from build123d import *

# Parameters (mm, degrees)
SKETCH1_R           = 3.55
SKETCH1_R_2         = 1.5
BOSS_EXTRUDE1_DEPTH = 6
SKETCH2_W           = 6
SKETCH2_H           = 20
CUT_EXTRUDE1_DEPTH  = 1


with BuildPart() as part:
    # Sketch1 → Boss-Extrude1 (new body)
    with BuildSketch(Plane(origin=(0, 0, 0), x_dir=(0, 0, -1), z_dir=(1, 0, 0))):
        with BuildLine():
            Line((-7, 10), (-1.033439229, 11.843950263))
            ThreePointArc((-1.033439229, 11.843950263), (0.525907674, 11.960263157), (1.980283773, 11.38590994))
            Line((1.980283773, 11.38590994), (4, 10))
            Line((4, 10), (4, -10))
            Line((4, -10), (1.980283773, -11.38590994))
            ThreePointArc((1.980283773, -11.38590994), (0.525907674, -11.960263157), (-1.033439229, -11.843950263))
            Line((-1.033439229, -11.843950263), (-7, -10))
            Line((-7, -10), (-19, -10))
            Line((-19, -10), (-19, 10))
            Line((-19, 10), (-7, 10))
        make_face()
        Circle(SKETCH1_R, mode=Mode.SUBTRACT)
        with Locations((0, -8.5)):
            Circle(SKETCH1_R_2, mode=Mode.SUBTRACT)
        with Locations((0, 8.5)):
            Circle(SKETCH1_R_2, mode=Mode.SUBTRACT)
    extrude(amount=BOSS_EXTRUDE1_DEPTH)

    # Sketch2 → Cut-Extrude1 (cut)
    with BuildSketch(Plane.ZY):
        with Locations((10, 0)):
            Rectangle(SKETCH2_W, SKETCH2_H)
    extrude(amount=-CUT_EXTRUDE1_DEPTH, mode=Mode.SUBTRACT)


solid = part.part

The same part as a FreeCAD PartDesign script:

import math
import FreeCAD as App
import Part
import Sketcher
from FreeCAD import Vector
Q = App.Units.Quantity


def add_polygon(sketch, points):
    """Adds a closed chain of lines whose ends are joined by coincident constraints."""
    first, n = sketch.GeometryCount, len(points)
    for a, b in zip(points, points[1:] + points[:1]):
        sketch.addGeometry(Part.LineSegment(App.Vector(*a, 0), App.Vector(*b, 0)), False)
    for i in range(n):
        sketch.addConstraint(Sketcher.Constraint("Coincident", first + i, 2, first + (i + 1) % n, 1))

doc = App.newDocument("Part")
body = doc.addObject("PartDesign::Body", "Body")

sketch1 = body.newObject("Sketcher::SketchObject", "Sketch")
sketch1.AttachmentSupport = (doc.getObject("YZ_Plane"), [""])
sketch1.MapMode = "FlatFace"
sketch1.addGeometry([
    Part.LineSegment(Vector(11.84395, 1.033439, 0), Vector(10, 7, 0)),
    Part.LineSegment(Vector(10, 7, 0), Vector(10, 19, 0)),
    Part.LineSegment(Vector(10, 19, 0), Vector(-10, 19, 0)),
    Part.LineSegment(Vector(-10, 19, 0), Vector(-10, 7, 0)),
    Part.LineSegment(Vector(-10, 7, 0), Vector(-11.84395, 1.033439, 0)),
    Part.ArcOfCircle(Part.Circle(Vector(-8.5, 0, 0), Vector(0, 0, 1), 3.5), math.radians(162.82637), math.radians(214.457541)),
    Part.LineSegment(Vector(-11.38591, -1.980284, 0), Vector(-10, -4, 0)),
    Part.LineSegment(Vector(-10, -4, 0), Vector(10, -4, 0)),
    Part.LineSegment(Vector(10, -4, 0), Vector(11.38591, -1.980284, 0)),
    Part.ArcOfCircle(Part.Circle(Vector(8.5, 0, 0), Vector(0, 0, 1), 3.5), math.radians(-34.457541), math.radians(17.17363)),
    Part.Circle(Vector(-8.5, 0, 0), Vector(0, 0, 1), 1.5),
    Part.Circle(Vector(8.5, 0, 0), Vector(0, 0, 1), 1.5),
    Part.Circle(Vector(0, 0, 0), Vector(0, 0, 1), 3.55),
], False)
sketch1.addConstraint([
    Sketcher.Constraint("Coincident", 0, 2, 1, 1),
    Sketcher.Constraint("Coincident", 1, 2, 2, 1),
    Sketcher.Constraint("Coincident", 2, 2, 3, 1),
    Sketcher.Constraint("Coincident", 3, 2, 4, 1),
    Sketcher.Constraint("Tangent", 4, 2, 5, 1),
    Sketcher.Constraint("Tangent", 5, 2, 6, 1),
    Sketcher.Constraint("Coincident", 6, 2, 7, 1),
    Sketcher.Constraint("Coincident", 7, 2, 8, 1),
    Sketcher.Constraint("Tangent", 8, 2, 9, 1),
    Sketcher.Constraint("Tangent", 9, 2, 0, 1),
    Sketcher.Constraint("Vertical", 1),
    Sketcher.Constraint("Horizontal", 2),
    Sketcher.Constraint("Vertical", 3),
    Sketcher.Constraint("Horizontal", 7),
    Sketcher.Constraint("Coincident", 12, 3, -1, 1),
    Sketcher.Constraint("Coincident", 10, 3, 5, 3),
    Sketcher.Constraint("Coincident", 11, 3, 9, 3),
    Sketcher.Constraint("Equal", 5, 9),
    Sketcher.Constraint("Equal", 10, 11),
    Sketcher.Constraint("Symmetric", 5, 3, 9, 3, -1, 1),
    Sketcher.Constraint("Symmetric", 0, 2, 3, 2, -2),
    Sketcher.Constraint("Symmetric", 5, 2, 8, 2, -2),
    Sketcher.Constraint("Vertical", 3, 2, 6, 2),
    Sketcher.Constraint("Diameter", 10, Q("3 mm")),
    Sketcher.Constraint("Diameter", 12, Q("7.1 mm")),
    Sketcher.Constraint("Radius", 5, Q("3.5 mm")),
    Sketcher.Constraint("DistanceX", 2, 2, 2, 1, Q("20 mm")),
    Sketcher.Constraint("DistanceY", 1, 1, 1, 2, Q("12 mm")),
    Sketcher.Constraint("DistanceY", -1, 1, 0, 2, Q("7 mm")),
    Sketcher.Constraint("DistanceY", 6, 2, -1, 1, Q("4 mm")),
    Sketcher.Constraint("DistanceX", 5, 3, 9, 3, Q("17 mm")),
])
pad1 = body.newObject("PartDesign::Pad", "Pad")
pad1.Profile = sketch1
pad1.Length = 6

sketch2 = body.newObject("Sketcher::SketchObject", "Sketch001")
sketch2.AttachmentSupport = (doc.getObject("YZ_Plane"), [""])
sketch2.MapMode = "FlatFace"
add_polygon(sketch2, [(10, 7), (-10, 7), (-10, 13), (10, 13)])
sketch2.addConstraint([
    Sketcher.Constraint("Horizontal", 0),
    Sketcher.Constraint("Vertical", 1),
    Sketcher.Constraint("Horizontal", 2),
    Sketcher.Constraint("Vertical", 3),
    Sketcher.Constraint("DistanceX", 0, 2, 0, 1, Q("20 mm")),
    Sketcher.Constraint("DistanceY", 1, 1, 1, 2, Q("6 mm")),
    Sketcher.Constraint("DistanceX", 0, 2, -1, 1, Q("10 mm")),
    Sketcher.Constraint("DistanceY", -1, 1, 0, 2, Q("7 mm")),
])
pocket1 = body.newObject("PartDesign::Pocket", "Pocket")
pocket1.Profile = sketch2
pocket1.Length = 1
pocket1.Reversed = True

doc.recompute()
